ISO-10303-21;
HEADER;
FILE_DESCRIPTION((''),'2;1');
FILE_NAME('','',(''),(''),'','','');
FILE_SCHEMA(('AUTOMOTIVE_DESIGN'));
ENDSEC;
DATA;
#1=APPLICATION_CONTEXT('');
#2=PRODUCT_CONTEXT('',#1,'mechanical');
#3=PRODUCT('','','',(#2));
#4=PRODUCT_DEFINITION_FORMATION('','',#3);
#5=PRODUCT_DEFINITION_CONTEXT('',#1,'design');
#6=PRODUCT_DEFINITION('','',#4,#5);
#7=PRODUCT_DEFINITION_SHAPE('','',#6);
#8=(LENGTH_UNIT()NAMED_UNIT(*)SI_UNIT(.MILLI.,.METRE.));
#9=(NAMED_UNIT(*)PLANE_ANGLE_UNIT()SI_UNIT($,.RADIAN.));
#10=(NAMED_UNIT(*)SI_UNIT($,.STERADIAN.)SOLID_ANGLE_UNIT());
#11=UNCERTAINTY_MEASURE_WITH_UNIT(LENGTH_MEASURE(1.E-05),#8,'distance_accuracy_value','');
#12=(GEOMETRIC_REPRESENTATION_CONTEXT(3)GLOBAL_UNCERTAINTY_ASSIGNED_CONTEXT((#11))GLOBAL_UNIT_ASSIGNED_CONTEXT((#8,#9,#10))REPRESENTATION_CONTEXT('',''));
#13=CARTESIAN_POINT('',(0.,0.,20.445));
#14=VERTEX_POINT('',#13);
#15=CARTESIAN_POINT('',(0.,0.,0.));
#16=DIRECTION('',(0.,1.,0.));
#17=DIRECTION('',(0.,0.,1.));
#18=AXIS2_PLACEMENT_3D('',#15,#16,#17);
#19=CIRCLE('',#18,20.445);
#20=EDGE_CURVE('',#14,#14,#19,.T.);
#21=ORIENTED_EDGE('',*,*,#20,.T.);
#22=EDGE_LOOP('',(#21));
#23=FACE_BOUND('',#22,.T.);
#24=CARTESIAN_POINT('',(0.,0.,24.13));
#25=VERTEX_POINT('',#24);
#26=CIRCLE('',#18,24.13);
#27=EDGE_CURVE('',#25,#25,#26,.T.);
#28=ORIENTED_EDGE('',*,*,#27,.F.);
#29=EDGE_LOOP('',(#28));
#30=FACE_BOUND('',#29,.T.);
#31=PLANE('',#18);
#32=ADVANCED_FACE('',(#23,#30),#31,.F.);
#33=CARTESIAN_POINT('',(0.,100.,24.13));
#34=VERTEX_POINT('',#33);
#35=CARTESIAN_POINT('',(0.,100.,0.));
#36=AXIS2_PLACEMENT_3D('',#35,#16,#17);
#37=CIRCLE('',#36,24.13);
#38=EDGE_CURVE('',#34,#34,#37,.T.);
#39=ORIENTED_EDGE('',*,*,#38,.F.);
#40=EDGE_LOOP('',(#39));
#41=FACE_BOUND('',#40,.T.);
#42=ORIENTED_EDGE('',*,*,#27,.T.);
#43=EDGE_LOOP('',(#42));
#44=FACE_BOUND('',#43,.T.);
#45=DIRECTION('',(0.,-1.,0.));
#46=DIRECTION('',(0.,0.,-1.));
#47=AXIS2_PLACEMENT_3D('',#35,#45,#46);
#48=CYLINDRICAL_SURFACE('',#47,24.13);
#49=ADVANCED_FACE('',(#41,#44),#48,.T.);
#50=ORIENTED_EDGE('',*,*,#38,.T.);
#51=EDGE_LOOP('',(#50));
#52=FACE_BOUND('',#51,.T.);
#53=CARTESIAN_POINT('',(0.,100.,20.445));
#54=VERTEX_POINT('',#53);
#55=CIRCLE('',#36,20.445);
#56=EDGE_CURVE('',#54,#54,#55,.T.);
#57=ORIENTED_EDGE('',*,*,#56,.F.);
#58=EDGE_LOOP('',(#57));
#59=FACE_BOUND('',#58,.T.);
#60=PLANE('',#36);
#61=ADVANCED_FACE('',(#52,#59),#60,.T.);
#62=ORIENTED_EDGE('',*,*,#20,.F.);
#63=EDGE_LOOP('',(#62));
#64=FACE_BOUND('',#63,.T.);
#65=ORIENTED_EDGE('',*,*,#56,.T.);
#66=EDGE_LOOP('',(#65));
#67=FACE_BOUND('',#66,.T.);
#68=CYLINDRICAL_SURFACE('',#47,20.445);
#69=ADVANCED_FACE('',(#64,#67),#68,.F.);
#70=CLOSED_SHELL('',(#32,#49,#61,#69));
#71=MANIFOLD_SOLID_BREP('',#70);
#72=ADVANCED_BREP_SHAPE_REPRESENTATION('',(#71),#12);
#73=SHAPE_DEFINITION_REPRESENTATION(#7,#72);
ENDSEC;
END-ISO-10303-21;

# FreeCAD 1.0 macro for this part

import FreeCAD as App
import Part
import Sketcher
from FreeCAD import Vector
Q = App.Units.Quantity

doc = App.newDocument("Part")
params = doc.addObject("Spreadsheet::Sheet", "Params")
for row, (alias, value) in enumerate([
    ("sketch1_diameter", "48.26 mm"),
    ("sketch1_diameter2", "40.89 mm"),
    ("pad1_length", "100 mm"),
], start=1):
    params.set(f"A{row}", alias)
    params.set(f"B{row}", "=" + value)
    params.setAlias(f"B{row}", alias)

body = doc.addObject("PartDesign::Body", "Body")

# Sketch on XZ plane
sketch1 = body.newObject("Sketcher::SketchObject", "Sketch")
sketch1.AttachmentSupport = (doc.getObject("XZ_Plane"), [""])
sketch1.MapMode = "FlatFace"
sketch1.addGeometry([
    Part.Circle(Vector(0, 0, 0), Vector(0, 0, 1), 24.13),
    Part.Circle(Vector(0, 0, 0), Vector(0, 0, 1), 20.445),
], False)
sketch1.addConstraint([
    Sketcher.Constraint("Coincident", 0, 3, -1, 1),
    Sketcher.Constraint("Coincident", 1, 3, -1, 1),
    Sketcher.Constraint("Diameter", 0, Q("48.26 mm")),
    Sketcher.Constraint("Diameter", 1, Q("40.89 mm")),
])
sketch1.setExpression("Constraints[2]", "Params.sketch1_diameter")
sketch1.setExpression("Constraints[3]", "Params.sketch1_diameter2")
pad1 = body.newObject("PartDesign::Pad", "Pad")
pad1.Profile = sketch1
pad1.setExpression("Length", "Params.pad1_length")
pad1.Reversed = True

doc.recompute()
